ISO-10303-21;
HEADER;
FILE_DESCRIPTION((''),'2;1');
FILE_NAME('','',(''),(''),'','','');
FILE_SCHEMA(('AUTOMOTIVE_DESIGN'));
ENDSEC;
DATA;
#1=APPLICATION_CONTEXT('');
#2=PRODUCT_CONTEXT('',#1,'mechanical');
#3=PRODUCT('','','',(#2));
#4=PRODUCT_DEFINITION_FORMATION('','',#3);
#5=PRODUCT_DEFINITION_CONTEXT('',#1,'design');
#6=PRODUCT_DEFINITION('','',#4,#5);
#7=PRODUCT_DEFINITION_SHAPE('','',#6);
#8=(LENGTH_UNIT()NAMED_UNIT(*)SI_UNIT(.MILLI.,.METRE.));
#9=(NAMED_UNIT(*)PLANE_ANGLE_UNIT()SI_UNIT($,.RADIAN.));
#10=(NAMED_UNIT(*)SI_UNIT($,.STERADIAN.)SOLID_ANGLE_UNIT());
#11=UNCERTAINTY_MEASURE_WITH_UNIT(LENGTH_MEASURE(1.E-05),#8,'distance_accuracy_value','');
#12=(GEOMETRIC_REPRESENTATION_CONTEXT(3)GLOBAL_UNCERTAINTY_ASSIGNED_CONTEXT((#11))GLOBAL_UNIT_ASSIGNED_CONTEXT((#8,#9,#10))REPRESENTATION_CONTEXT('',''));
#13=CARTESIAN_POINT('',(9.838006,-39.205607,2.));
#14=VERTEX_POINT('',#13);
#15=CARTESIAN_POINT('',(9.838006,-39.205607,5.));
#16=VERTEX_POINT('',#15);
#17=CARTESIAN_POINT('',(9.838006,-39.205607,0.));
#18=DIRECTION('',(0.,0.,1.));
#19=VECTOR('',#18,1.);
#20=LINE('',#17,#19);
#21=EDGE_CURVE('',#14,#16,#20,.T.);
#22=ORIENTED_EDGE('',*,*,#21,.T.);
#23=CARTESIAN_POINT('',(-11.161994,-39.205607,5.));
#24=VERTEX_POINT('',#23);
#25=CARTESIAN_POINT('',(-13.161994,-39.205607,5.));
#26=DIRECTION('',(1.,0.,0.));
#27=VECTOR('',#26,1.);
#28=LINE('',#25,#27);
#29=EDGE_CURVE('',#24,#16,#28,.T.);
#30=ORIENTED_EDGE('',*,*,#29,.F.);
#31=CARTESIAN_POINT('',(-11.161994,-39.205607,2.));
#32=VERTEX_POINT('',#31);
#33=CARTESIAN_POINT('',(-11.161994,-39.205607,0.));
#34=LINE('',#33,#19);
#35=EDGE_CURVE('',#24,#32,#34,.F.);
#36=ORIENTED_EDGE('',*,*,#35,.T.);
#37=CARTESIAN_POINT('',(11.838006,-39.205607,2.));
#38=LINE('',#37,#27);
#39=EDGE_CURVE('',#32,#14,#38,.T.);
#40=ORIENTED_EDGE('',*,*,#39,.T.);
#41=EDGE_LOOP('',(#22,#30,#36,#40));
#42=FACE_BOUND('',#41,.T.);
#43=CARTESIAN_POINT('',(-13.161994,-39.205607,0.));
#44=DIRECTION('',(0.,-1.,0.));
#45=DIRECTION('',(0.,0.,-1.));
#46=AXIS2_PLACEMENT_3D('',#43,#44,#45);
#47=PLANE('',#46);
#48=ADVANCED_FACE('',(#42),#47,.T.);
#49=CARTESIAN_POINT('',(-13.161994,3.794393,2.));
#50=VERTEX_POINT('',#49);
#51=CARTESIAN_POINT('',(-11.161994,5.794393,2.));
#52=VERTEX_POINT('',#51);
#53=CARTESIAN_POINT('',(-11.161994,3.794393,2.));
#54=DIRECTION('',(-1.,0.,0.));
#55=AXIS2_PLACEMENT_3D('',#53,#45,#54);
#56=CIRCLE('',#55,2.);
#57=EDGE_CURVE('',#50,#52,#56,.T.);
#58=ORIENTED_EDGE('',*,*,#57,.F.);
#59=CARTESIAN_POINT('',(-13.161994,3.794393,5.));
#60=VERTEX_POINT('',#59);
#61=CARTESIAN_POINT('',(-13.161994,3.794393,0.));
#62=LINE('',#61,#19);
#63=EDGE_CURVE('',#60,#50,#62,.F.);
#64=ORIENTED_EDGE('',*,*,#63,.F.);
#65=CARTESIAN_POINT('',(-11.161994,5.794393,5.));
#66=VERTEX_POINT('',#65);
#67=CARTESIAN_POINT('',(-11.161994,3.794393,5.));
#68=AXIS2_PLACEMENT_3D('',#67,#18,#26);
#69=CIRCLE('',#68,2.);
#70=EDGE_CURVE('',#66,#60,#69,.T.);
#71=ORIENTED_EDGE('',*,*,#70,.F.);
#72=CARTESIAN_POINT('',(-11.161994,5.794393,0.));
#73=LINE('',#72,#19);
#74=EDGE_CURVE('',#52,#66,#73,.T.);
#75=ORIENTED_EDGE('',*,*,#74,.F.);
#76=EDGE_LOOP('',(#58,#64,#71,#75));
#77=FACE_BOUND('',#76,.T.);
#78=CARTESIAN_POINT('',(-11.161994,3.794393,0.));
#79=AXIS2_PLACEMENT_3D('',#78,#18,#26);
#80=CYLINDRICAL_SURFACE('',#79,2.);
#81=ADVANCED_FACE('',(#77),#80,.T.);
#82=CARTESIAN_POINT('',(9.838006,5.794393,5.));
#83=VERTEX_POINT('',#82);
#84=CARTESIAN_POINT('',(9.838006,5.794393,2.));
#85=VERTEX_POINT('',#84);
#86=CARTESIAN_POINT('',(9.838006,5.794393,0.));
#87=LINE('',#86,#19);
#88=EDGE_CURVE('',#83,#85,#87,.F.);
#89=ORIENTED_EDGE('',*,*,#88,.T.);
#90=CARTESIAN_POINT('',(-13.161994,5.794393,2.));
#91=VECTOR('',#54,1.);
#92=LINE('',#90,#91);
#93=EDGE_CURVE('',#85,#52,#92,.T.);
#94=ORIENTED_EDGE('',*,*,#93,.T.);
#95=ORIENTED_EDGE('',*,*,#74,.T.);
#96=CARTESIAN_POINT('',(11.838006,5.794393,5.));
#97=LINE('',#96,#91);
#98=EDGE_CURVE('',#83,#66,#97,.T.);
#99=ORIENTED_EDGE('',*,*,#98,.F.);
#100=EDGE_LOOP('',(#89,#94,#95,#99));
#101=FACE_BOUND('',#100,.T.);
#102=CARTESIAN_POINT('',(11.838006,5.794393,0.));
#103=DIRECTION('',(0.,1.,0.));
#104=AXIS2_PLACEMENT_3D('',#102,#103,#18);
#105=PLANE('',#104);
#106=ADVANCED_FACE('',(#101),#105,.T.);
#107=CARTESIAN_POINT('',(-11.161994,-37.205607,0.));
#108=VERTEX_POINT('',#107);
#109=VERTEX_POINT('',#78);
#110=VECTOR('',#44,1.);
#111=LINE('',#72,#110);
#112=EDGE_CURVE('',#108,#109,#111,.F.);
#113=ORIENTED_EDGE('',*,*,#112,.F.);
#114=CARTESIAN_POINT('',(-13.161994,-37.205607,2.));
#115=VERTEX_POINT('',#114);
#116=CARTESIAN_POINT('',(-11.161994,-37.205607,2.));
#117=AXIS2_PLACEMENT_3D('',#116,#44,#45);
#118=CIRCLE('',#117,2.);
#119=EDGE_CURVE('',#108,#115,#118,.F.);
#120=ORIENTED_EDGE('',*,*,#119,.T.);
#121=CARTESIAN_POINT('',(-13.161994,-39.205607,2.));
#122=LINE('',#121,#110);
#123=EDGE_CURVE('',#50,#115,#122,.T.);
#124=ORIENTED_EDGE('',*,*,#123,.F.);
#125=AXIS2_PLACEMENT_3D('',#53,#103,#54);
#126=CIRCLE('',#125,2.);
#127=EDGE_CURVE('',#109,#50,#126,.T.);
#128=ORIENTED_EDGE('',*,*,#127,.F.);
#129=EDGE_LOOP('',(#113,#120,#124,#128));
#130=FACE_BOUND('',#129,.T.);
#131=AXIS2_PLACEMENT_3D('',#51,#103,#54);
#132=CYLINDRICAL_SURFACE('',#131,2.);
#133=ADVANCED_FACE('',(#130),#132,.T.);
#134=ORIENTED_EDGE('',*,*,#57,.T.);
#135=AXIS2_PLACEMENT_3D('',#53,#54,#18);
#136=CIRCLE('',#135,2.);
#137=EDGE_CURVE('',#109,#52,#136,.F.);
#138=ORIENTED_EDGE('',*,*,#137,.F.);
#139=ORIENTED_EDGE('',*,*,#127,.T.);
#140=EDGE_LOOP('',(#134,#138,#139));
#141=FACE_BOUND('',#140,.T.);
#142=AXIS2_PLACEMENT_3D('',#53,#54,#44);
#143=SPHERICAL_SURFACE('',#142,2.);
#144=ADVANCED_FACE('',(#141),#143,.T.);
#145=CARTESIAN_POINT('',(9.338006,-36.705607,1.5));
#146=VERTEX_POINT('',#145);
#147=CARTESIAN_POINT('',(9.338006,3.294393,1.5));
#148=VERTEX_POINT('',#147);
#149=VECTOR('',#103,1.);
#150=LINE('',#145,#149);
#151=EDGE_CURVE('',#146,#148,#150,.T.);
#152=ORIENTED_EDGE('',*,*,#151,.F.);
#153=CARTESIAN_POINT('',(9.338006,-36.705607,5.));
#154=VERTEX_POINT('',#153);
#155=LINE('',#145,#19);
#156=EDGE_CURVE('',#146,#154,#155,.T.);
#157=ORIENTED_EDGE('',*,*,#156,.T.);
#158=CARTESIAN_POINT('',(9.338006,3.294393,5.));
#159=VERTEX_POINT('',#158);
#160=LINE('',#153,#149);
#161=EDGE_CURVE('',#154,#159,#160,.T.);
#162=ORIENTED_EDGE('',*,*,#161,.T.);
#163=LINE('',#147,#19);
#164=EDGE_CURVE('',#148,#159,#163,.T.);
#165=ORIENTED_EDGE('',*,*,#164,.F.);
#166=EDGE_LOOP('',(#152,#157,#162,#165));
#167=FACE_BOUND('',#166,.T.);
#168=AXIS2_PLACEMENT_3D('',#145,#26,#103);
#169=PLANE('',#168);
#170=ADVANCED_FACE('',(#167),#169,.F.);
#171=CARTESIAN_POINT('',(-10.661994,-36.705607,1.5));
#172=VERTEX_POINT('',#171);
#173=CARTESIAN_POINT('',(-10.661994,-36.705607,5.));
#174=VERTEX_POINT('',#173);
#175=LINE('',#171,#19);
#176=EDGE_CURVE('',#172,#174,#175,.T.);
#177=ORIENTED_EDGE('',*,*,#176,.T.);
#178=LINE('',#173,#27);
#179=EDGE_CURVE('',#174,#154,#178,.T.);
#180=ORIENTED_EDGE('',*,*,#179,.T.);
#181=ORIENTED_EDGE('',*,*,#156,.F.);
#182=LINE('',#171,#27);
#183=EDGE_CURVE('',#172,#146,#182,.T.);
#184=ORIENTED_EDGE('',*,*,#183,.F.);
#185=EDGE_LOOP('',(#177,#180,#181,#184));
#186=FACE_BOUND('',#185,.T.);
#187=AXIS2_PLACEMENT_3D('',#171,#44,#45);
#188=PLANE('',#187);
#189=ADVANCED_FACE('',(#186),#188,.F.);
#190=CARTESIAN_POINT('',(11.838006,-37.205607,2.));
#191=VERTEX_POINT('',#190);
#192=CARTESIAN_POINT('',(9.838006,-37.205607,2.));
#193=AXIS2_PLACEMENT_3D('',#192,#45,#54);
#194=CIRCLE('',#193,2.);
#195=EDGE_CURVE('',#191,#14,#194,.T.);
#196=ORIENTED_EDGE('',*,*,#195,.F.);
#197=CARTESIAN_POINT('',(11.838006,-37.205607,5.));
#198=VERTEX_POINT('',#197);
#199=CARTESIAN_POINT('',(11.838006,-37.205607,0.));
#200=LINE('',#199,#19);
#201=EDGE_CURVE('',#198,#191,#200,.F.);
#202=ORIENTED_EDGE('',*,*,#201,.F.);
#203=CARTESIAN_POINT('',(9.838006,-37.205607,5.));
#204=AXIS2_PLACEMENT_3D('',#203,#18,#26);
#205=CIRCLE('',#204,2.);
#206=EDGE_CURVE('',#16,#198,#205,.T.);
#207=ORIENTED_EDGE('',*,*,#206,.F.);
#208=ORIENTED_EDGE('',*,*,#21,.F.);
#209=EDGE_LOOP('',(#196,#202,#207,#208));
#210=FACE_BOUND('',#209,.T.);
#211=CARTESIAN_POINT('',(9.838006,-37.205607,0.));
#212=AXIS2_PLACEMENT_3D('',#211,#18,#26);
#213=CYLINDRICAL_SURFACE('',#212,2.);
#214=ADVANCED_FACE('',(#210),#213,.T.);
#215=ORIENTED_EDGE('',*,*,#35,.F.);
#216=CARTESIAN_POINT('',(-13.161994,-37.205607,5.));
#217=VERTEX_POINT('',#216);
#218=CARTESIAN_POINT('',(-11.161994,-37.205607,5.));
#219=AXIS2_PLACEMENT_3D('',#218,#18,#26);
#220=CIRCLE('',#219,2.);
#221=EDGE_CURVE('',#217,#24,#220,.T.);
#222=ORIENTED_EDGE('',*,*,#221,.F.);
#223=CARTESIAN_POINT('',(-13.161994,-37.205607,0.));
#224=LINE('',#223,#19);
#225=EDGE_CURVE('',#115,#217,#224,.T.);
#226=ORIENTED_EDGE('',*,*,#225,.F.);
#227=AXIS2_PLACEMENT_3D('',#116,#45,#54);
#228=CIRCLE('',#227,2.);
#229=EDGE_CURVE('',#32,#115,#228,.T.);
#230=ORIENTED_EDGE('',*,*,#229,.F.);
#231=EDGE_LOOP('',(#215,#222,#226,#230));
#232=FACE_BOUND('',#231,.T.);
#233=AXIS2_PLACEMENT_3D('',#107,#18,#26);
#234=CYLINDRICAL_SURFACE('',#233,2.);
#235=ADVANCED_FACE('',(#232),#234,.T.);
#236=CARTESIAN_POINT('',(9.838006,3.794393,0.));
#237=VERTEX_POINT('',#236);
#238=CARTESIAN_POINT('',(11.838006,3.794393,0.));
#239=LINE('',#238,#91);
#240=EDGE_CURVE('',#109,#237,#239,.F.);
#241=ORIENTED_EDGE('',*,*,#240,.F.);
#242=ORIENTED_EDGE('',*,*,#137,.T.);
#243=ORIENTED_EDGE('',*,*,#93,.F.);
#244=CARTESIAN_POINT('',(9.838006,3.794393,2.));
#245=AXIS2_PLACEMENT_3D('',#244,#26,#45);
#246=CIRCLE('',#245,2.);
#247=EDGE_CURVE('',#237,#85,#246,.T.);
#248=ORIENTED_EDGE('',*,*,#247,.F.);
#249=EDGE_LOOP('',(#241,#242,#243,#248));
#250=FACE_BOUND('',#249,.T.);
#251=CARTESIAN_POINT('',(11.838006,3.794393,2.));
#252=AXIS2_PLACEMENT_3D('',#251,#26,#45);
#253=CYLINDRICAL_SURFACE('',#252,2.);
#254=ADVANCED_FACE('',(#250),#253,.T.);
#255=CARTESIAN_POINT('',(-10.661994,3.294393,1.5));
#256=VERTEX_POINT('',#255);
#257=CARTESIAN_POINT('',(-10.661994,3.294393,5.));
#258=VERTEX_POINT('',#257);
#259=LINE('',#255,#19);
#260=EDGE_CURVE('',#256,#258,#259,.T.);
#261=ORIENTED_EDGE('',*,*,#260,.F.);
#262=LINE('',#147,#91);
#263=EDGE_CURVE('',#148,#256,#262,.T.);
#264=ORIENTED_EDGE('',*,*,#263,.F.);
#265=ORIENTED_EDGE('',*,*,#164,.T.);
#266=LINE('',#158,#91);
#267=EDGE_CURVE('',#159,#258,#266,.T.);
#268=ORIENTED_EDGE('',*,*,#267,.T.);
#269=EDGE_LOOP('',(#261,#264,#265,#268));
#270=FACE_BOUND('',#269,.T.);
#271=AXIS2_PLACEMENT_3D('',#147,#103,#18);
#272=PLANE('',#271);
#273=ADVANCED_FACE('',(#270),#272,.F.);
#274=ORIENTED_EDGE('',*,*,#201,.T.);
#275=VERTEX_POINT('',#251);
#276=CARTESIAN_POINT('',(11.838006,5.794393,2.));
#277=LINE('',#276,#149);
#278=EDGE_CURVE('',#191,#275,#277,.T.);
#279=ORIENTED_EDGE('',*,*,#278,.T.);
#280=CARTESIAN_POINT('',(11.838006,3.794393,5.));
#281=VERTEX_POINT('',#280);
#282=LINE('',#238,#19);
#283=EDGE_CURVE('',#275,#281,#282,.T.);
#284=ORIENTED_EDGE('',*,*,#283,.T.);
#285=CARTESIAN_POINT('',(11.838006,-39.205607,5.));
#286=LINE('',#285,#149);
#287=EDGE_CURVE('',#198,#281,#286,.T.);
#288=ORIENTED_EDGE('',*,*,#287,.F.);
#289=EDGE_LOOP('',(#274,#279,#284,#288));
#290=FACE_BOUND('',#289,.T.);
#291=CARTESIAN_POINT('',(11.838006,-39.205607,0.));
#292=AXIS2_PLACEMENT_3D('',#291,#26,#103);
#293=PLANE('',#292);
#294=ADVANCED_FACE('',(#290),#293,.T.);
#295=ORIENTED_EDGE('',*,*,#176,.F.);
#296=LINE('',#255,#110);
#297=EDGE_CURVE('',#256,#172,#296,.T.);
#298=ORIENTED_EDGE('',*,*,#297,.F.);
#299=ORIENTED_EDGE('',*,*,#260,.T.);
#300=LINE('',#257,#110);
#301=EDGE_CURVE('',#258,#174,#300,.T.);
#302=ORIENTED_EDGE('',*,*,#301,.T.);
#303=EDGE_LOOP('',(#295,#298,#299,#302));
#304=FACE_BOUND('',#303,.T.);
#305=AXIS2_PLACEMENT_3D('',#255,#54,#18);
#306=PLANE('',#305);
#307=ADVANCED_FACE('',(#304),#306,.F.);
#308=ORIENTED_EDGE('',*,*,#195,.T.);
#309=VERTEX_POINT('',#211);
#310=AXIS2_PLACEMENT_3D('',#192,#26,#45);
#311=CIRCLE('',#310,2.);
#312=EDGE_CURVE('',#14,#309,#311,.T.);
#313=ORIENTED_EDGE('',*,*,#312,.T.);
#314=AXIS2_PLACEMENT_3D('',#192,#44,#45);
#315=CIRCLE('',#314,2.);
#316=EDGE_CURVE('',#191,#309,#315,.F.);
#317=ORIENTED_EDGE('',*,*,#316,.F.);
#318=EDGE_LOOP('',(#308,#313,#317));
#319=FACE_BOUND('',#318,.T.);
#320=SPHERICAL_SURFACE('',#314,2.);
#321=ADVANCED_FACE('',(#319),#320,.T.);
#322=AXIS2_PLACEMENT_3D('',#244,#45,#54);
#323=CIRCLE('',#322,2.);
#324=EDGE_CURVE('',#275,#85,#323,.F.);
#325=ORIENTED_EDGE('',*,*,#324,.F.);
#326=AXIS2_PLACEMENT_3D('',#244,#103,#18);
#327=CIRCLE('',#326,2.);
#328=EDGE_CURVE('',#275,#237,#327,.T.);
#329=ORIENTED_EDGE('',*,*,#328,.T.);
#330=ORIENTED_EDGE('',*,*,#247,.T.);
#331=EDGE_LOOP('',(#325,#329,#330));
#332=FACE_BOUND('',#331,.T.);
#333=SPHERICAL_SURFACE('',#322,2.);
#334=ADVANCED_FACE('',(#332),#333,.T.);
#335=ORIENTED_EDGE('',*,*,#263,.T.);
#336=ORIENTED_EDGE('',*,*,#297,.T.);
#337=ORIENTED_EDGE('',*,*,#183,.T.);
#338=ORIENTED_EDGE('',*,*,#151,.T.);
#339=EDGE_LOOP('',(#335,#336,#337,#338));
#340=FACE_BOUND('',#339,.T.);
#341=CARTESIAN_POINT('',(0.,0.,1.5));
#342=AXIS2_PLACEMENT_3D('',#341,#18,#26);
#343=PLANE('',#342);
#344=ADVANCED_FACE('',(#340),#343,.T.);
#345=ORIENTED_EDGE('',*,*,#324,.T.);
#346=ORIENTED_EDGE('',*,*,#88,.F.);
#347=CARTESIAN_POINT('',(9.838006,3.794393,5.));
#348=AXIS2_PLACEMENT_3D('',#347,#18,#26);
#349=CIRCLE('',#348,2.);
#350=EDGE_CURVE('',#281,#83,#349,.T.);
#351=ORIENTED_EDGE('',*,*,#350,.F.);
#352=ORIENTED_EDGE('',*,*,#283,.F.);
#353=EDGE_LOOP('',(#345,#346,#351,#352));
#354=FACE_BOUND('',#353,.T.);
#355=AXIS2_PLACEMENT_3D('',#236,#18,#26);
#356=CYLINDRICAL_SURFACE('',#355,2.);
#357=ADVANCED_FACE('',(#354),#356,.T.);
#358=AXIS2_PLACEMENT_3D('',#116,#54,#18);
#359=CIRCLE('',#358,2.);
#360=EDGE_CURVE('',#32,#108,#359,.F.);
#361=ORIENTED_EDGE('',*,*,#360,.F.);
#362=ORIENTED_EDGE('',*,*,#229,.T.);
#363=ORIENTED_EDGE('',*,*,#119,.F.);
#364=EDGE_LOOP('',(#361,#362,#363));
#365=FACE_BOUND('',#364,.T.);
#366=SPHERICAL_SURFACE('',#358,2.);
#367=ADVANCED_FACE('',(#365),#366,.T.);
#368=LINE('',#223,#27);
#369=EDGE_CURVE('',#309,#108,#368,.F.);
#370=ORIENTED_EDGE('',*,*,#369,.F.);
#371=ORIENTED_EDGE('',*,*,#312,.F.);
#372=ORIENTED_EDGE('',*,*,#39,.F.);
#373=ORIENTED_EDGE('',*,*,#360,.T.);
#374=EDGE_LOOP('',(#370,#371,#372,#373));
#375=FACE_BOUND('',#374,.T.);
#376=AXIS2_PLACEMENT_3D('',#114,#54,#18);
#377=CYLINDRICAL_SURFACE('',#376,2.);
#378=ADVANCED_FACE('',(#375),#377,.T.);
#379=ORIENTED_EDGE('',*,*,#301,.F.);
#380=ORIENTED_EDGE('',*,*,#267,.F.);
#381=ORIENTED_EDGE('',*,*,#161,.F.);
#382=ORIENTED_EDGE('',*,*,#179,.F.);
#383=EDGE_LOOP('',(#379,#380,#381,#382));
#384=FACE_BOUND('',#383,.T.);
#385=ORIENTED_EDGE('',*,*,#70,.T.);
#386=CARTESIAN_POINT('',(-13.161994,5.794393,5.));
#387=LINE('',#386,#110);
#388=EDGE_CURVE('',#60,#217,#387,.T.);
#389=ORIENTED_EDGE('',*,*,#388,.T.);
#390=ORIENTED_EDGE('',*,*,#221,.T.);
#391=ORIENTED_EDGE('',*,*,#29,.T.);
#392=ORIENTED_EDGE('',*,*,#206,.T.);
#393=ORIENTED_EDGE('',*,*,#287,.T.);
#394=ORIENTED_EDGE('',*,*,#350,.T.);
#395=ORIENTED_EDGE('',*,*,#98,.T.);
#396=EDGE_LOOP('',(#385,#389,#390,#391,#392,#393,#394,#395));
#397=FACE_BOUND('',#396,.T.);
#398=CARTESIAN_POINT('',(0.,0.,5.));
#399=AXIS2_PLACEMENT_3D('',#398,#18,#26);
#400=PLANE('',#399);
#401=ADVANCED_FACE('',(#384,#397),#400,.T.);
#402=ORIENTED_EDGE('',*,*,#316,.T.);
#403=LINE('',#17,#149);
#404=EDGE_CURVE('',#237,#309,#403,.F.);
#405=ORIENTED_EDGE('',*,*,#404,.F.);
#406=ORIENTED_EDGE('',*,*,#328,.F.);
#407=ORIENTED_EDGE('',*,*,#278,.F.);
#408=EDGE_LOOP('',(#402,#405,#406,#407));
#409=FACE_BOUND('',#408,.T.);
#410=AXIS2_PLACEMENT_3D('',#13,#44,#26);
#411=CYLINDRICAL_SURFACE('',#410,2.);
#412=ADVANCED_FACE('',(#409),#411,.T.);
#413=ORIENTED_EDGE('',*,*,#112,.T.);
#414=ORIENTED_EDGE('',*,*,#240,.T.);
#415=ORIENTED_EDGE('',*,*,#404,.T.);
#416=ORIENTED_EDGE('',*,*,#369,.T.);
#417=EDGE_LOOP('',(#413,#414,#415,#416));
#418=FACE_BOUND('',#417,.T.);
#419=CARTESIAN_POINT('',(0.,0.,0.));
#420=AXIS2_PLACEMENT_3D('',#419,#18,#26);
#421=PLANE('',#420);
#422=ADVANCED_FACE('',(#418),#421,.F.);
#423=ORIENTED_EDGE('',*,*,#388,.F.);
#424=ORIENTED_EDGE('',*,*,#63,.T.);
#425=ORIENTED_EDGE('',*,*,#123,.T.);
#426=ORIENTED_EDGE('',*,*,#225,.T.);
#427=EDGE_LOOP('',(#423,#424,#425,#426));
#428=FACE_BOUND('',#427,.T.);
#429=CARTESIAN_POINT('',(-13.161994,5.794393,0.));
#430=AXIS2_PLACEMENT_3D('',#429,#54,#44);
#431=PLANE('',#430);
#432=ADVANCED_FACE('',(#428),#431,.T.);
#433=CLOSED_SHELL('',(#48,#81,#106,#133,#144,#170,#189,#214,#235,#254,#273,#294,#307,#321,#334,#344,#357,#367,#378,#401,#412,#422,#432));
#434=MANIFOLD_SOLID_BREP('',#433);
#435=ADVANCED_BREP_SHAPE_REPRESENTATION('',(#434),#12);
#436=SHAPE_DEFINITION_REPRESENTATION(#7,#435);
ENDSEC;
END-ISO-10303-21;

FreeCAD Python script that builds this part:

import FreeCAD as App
import Part
import Sketcher

V = App.Vector
Q = App.Units.Quantity


def edges_at(feature, points):
    """Names of the edges that pass closest to the given points."""
    edges = feature.Shape.Edges
    near = lambda p: min(range(len(edges)), key=lambda i: edges[i].distToShape(Part.Vertex(*p))[0])
    return sorted({f"Edge{near(p) + 1}" for p in points})

doc = App.newDocument("Part")
body = doc.addObject("PartDesign::Body", "Body")

# Sketch on XY plane
sketch1 = doc.addObject("Sketcher::SketchObject", "Sketch")
body.addObject(sketch1)
sketch1.AttachmentSupport = (doc.XY_Plane, [""])
sketch1.MapMode = "FlatFace"
sketch1.AttachmentOffset = App.Placement(V(0, 0, 5), App.Rotation())
sketch1.addGeometry([
    Part.LineSegment(V(-13.161994, 5.794393, 0), V(-13.161994, -39.205607, 0)),
    Part.LineSegment(V(-13.161994, -39.205607, 0), V(11.838006, -39.205607, 0)),
    Part.LineSegment(V(11.838006, -39.205607, 0), V(11.838006, 5.794393, 0)),
    Part.LineSegment(V(11.838006, 5.794393, 0), V(-13.161994, 5.794393, 0)),
], False)
sketch1.addConstraint([
    Sketcher.Constraint("Coincident", 0, 2, 1, 1),
    Sketcher.Constraint("Coincident", 1, 2, 2, 1),
    Sketcher.Constraint("Coincident", 2, 2, 3, 1),
    Sketcher.Constraint("Coincident", 3, 2, 0, 1),
    Sketcher.Constraint("Vertical", 0),
    Sketcher.Constraint("Horizontal", 1),
    Sketcher.Constraint("Vertical", 2),
    Sketcher.Constraint("Horizontal", 3),
    Sketcher.Constraint("DistanceX", 1, 1, 1, 2, Q("25 mm")),
    Sketcher.Constraint("DistanceY", 0, 2, 0, 1, Q("45 mm")),
    Sketcher.Constraint("DistanceX", 0, 2, -1, 1, Q("13.161994 mm")),
    Sketcher.Constraint("DistanceY", 0, 2, -1, 1, Q("39.205607 mm")),
])
pad1 = doc.addObject("PartDesign::Pad", "Pad")
body.addObject(pad1)
pad1.Profile = sketch1
pad1.Length = 5
pad1.Reversed = True

# Sketch on XY plane
sketch2 = doc.addObject("Sketcher::SketchObject", "Sketch001")
body.addObject(sketch2)
sketch2.AttachmentSupport = (doc.XY_Plane, [""])
sketch2.MapMode = "FlatFace"
sketch2.AttachmentOffset = App.Placement(V(0, 0, 5), App.Rotation())
sketch2.addGeometry([
    Part.LineSegment(V(-10.661994, 3.294393, 0), V(-10.661994, -36.705607, 0)),
    Part.LineSegment(V(-10.661994, -36.705607, 0), V(9.338006, -36.705607, 0)),
    Part.LineSegment(V(9.338006, -36.705607, 0), V(9.338006, 3.294393, 0)),
    Part.LineSegment(V(9.338006, 3.294393, 0), V(-10.661994, 3.294393, 0)),
], False)
sketch2.addConstraint([
    Sketcher.Constraint("Coincident", 0, 2, 1, 1),
    Sketcher.Constraint("Coincident", 1, 2, 2, 1),
    Sketcher.Constraint("Coincident", 2, 2, 3, 1),
    Sketcher.Constraint("Coincident", 3, 2, 0, 1),
    Sketcher.Constraint("Vertical", 0),
    Sketcher.Constraint("Horizontal", 1),
    Sketcher.Constraint("Vertical", 2),
    Sketcher.Constraint("Horizontal", 3),
    Sketcher.Constraint("DistanceX", 1, 1, 1, 2, Q("20 mm")),
    Sketcher.Constraint("DistanceY", 0, 2, 0, 1, Q("40 mm")),
    Sketcher.Constraint("DistanceX", 0, 2, -1, 1, Q("10.661994 mm")),
    Sketcher.Constraint("DistanceY", 0, 2, -1, 1, Q("36.705607 mm")),
])
pocket1 = doc.addObject("PartDesign::Pocket", "Pocket")
body.addObject(pocket1)
pocket1.Profile = sketch2
pocket1.Length = 3.5
doc.recompute()

fillet = doc.addObject("PartDesign::Fillet", "Fillet")
body.addObject(fillet)
fillet.Base = (pocket1, edges_at(pocket1, [
    (11.838, -16.706, 0),
    (-0.662, 5.794, 0),
    (-13.162, -16.706, 0),
    (-13.162, 5.794, 2.5),
    (11.838, 5.794, 2.5),
    (11.838, -39.206, 2.5),
    (-13.162, -39.206, 2.5),
    (-0.662, -39.206, 0),
]))
fillet.Radius = 2

doc.recompute()
